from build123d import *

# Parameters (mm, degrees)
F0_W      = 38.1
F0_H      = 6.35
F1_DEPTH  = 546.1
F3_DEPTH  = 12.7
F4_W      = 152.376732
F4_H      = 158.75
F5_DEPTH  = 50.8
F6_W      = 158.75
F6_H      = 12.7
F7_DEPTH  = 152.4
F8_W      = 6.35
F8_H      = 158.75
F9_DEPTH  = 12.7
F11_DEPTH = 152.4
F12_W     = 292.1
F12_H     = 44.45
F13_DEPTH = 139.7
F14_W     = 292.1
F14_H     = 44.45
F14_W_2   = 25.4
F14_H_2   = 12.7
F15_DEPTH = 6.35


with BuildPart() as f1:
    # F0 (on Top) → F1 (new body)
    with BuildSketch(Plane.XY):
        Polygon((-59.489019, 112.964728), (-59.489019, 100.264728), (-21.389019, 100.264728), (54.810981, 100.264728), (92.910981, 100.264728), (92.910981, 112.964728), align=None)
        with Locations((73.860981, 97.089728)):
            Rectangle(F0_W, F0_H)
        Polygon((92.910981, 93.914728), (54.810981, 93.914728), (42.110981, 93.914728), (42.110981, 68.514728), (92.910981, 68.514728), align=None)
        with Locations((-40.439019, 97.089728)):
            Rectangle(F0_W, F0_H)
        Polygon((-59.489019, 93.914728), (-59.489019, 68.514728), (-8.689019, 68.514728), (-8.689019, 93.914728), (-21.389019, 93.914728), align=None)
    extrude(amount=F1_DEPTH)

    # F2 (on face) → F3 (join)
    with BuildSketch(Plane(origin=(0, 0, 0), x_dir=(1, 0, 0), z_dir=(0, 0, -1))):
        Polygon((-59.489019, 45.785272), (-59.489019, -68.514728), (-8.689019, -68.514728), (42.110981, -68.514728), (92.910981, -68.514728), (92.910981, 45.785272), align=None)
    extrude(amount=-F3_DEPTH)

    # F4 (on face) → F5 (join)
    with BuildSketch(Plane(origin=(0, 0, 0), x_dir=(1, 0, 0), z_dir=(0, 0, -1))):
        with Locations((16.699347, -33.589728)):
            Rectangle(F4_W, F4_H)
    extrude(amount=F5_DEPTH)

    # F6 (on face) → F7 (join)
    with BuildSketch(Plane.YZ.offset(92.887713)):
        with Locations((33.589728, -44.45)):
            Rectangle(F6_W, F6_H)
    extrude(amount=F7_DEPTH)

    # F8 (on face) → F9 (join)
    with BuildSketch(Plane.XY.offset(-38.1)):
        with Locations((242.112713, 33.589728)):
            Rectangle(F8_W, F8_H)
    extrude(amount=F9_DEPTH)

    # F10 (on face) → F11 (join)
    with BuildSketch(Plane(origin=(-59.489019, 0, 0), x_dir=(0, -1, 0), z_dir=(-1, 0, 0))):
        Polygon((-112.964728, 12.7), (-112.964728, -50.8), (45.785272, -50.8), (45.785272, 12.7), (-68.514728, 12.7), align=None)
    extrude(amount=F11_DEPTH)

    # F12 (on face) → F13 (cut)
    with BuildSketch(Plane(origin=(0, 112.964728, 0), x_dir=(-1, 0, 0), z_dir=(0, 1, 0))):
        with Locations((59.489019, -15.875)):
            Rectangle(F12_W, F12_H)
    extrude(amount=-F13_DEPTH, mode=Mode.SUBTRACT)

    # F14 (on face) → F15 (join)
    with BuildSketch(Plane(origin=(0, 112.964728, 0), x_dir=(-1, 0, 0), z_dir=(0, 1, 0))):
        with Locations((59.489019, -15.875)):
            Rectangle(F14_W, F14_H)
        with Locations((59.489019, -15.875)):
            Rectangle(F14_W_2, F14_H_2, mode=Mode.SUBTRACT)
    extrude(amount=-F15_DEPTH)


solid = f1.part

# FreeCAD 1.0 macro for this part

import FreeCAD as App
import Part
import Sketcher

V = App.Vector
Q = App.Units.Quantity


def add_polygon(sketch, points):
    """Adds a closed chain of lines whose ends are joined by coincident constraints."""
    first, n = sketch.GeometryCount, len(points)
    for a, b in zip(points, points[1:] + points[:1]):
        sketch.addGeometry(Part.LineSegment(App.Vector(*a, 0), App.Vector(*b, 0)), False)
    for i in range(n):
        sketch.addConstraint(Sketcher.Constraint("Coincident", first + i, 2, first + (i + 1) % n, 1))

doc = App.newDocument("Part")
params = doc.addObject("Spreadsheet::Sheet", "Params")
for row, (alias, value) in enumerate([
    ("sketch1_width", "2 in"),
    ("sketch1_width2", "3 in"),
    ("sketch1_width3", "6 in"),
    ("sketch1_height", "1 in"),
    ("sketch1_height2", "1.75 in"),
    ("pad1_length", "21.5 in"),
    ("sketch2_width", "6 in"),
    ("sketch2_height", "4.5 in"),
    ("pad2_length", "0.5 in"),
    ("sketch3_height", "6.25 in"),
    ("pad3_length", "2 in"),
    ("sketch4_height", "0.5 in"),
    ("sketch4_width", "6.25 in"),
    ("pad4_length", "6 in"),
    ("sketch5_width", "0.25 in"),
    ("sketch5_height", "6.25 in"),
    ("pad5_length", "0.5 in"),
    ("sketch6_height", "2.5 in"),
    ("sketch6_width", "6.25 in"),
    ("pad6_length", "6 in"),
    ("sketch7_width", "11.5 in"),
    ("sketch7_height", "1.75 in"),
    ("pocket1_length", "5.5 in"),
    ("sketch8_width", "1 in"),
    ("sketch8_width2", "11.5 in"),
    ("sketch8_height", "0.5 in"),
    ("sketch8_height2", "1.75 in"),
    ("pad7_length", "0.25 in"),
], start=1):
    params.set(f"A{row}", alias)
    params.set(f"B{row}", "=" + value)
    params.setAlias(f"B{row}", alias)

body = doc.addObject("PartDesign::Body", "Body")

# Sketch on XY plane
sketch1 = doc.addObject("Sketcher::SketchObject", "Sketch")
body.addObject(sketch1)
sketch1.AttachmentSupport = (doc.XY_Plane, [""])
sketch1.MapMode = "FlatFace"
add_polygon(sketch1, [(-59, 113), (-59, 69), (-9, 69), (-9, 94), (-21, 94), (-21, 100), (55, 100), (55, 94), (42, 94), (42, 69), (93, 69), (93, 113)])  # lines 0-11
sketch1.addConstraint([
    Sketcher.Constraint("Vertical", 0),
    Sketcher.Constraint("Horizontal", 1),
    Sketcher.Constraint("Vertical", 2),
    Sketcher.Constraint("Horizontal", 3),
    Sketcher.Constraint("Vertical", 4),
    Sketcher.Constraint("Horizontal", 5),
    Sketcher.Constraint("Vertical", 6),
    Sketcher.Constraint("Horizontal", 7),
    Sketcher.Constraint("Vertical", 8),
    Sketcher.Constraint("Horizontal", 9),
    Sketcher.Constraint("Vertical", 10),
    Sketcher.Constraint("Horizontal", 11),
    Sketcher.Constraint("Horizontal", 3, 2, 6, 2),
    Sketcher.Constraint("Horizontal", 1, 2, 8, 2),
    Sketcher.Constraint("Equal", 3, 7),
    Sketcher.Constraint("Equal", 1, 9),
    Sketcher.Constraint("DistanceX", 1, 1, 1, 2, Q("2 in")),
    Sketcher.Constraint("DistanceX", 5, 1, 5, 2, Q("3 in")),
    Sketcher.Constraint("DistanceX", 11, 2, 11, 1, Q("6 in")),
    Sketcher.Constraint("DistanceY", 2, 1, 2, 2, Q("1 in")),
    Sketcher.Constraint("DistanceY", 0, 2, 0, 1, Q("1.75 in")),
    Sketcher.Constraint("DistanceY", 4, 1, 4, 2, Q("0.25 in")),
    Sketcher.Constraint("DistanceX", 0, 2, -1, 1, Q("59.489019 mm")),
    Sketcher.Constraint("DistanceY", -1, 1, 0, 2, Q("68.514728 mm")),
])
sketch1.setExpression("Constraints[28]", "Params.sketch1_width")
sketch1.setExpression("Constraints[29]", "Params.sketch1_width2")
sketch1.setExpression("Constraints[30]", "Params.sketch1_width3")
sketch1.setExpression("Constraints[31]", "Params.sketch1_height")
sketch1.setExpression("Constraints[32]", "Params.sketch1_height2")
pad1 = doc.addObject("PartDesign::Pad", "Pad")
body.addObject(pad1)
pad1.Profile = sketch1
pad1.setExpression("Length", "Params.pad1_length")

# Sketch on XY plane
sketch2 = doc.addObject("Sketcher::SketchObject", "Sketch001")
body.addObject(sketch2)
sketch2.AttachmentSupport = (doc.XY_Plane, [""])
sketch2.MapMode = "FlatFace"
add_polygon(sketch2, [(-59, -46), (-59, 69), (93, 69), (93, -46)])  # lines 0-3
sketch2.addConstraint([
    Sketcher.Constraint("Vertical", 0),
    Sketcher.Constraint("Horizontal", 1),
    Sketcher.Constraint("Vertical", 2),
    Sketcher.Constraint("Horizontal", 3),
    Sketcher.Constraint("DistanceX", 1, 1, 1, 2, Q("6 in")),
    Sketcher.Constraint("DistanceY", 0, 1, 0, 2, Q("4.5 in")),
    Sketcher.Constraint("DistanceX", 0, 2, -1, 1, Q("59.489019 mm")),
    Sketcher.Constraint("DistanceY", -1, 1, 0, 2, Q("68.514728 mm")),
])
sketch2.setExpression("Constraints[8]", "Params.sketch2_width")
sketch2.setExpression("Constraints[9]", "Params.sketch2_height")
pad2 = doc.addObject("PartDesign::Pad", "Pad001")
body.addObject(pad2)
pad2.Profile = sketch2
pad2.setExpression("Length", "Params.pad2_length")

# Sketch on XY plane
sketch3 = doc.addObject("Sketcher::SketchObject", "Sketch002")
body.addObject(sketch3)
sketch3.AttachmentSupport = (doc.XY_Plane, [""])
sketch3.MapMode = "FlatFace"
add_polygon(sketch3, [(-59, -46), (-59, 113), (93, 113), (93, -46)])  # lines 0-3
sketch3.addConstraint([
    Sketcher.Constraint("Vertical", 0),
    Sketcher.Constraint("Horizontal", 1),
    Sketcher.Constraint("Vertical", 2),
    Sketcher.Constraint("Horizontal", 3),
    Sketcher.Constraint("DistanceY", 0, 1, 0, 2, Q("6.25 in")),
    Sketcher.Constraint("DistanceX", 1, 1, 1, 2, Q("152.376732 mm")),
    Sketcher.Constraint("DistanceX", 0, 2, -1, 1, Q("59.489019 mm")),
    Sketcher.Constraint("DistanceY", -1, 1, 0, 2, Q("112.964728 mm")),
])
sketch3.setExpression("Constraints[8]", "Params.sketch3_height")
pad3 = doc.addObject("PartDesign::Pad", "Pad002")
body.addObject(pad3)
pad3.Profile = sketch3
pad3.setExpression("Length", "Params.pad3_length")
pad3.Reversed = True

# Sketch on YZ plane
sketch4 = doc.addObject("Sketcher::SketchObject", "Sketch003")
body.addObject(sketch4)
sketch4.AttachmentSupport = (doc.YZ_Plane, [""])
sketch4.MapMode = "FlatFace"
sketch4.AttachmentOffset = App.Placement(V(0, 0, 92.887713), App.Rotation())
add_polygon(sketch4, [(-46, -38), (-46, -51), (113, -51), (113, -38)])  # lines 0-3
sketch4.addConstraint([
    Sketcher.Constraint("Vertical", 0),
    Sketcher.Constraint("Horizontal", 1),
    Sketcher.Constraint("Vertical", 2),
    Sketcher.Constraint("Horizontal", 3),
    Sketcher.Constraint("DistanceY", 0, 2, 0, 1, Q("0.5 in")),
    Sketcher.Constraint("DistanceY", 0, 2, -1, 1, Q("2 in")),
    Sketcher.Constraint("DistanceX", 1, 1, 1, 2, Q("6.25 in")),
    Sketcher.Constraint("DistanceX", 0, 2, -1, 1, Q("45.785272 mm")),
])
sketch4.setExpression("Constraints[8]", "Params.sketch4_height")
sketch4.setExpression("Constraints[10]", "Params.sketch4_width")
pad4 = doc.addObject("PartDesign::Pad", "Pad003")
body.addObject(pad4)
pad4.Profile = sketch4
pad4.setExpression("Length", "Params.pad4_length")

# Sketch on XY plane
sketch5 = doc.addObject("Sketcher::SketchObject", "Sketch004")
body.addObject(sketch5)
sketch5.AttachmentSupport = (doc.XY_Plane, [""])
sketch5.MapMode = "FlatFace"
sketch5.AttachmentOffset = App.Placement(V(0, 0, -1.5 * 25.4), App.Rotation())
add_polygon(sketch5, [(239, 113), (239, -46), (245, -46), (245, 113)])  # lines 0-3
sketch5.addConstraint([
    Sketcher.Constraint("Vertical", 0),
    Sketcher.Constraint("Horizontal", 1),
    Sketcher.Constraint("Vertical", 2),
    Sketcher.Constraint("Horizontal", 3),
    Sketcher.Constraint("DistanceX", 1, 1, 1, 2, Q("0.25 in")),
    Sketcher.Constraint("DistanceY", 0, 2, 0, 1, Q("6.25 in")),
    Sketcher.Constraint("DistanceX", -1, 1, 0, 2, Q("238.937713 mm")),
    Sketcher.Constraint("DistanceY", 0, 2, -1, 1, Q("45.785272 mm")),
])
sketch5.setExpression("Constraints[8]", "Params.sketch5_width")
sketch5.setExpression("Constraints[9]", "Params.sketch5_height")
pad5 = doc.addObject("PartDesign::Pad", "Pad004")
body.addObject(pad5)
pad5.Profile = sketch5
pad5.setExpression("Length", "Params.pad5_length")

# Sketch on YZ plane
sketch6 = doc.addObject("Sketcher::SketchObject", "Sketch005")
body.addObject(sketch6)
sketch6.AttachmentSupport = (doc.YZ_Plane, [""])
sketch6.MapMode = "FlatFace"
sketch6.AttachmentOffset = App.Placement(V(0, 0, -59.489019), App.Rotation())
add_polygon(sketch6, [(113, 13), (113, -51), (-46, -51), (-46, 13)])  # lines 0-3
sketch6.addConstraint([
    Sketcher.Constraint("Vertical", 0),
    Sketcher.Constraint("Horizontal", 1),
    Sketcher.Constraint("Vertical", 2),
    Sketcher.Constraint("Horizontal", 3),
    Sketcher.Constraint("DistanceY", 0, 2, 0, 1, Q("2.5 in")),
    Sketcher.Constraint("DistanceY", 0, 2, -1, 1, Q("2 in")),
    Sketcher.Constraint("DistanceX", 1, 2, 1, 1, Q("6.25 in")),
    Sketcher.Constraint("DistanceX", -1, 1, 0, 2, Q("112.964728 mm")),
])
sketch6.setExpression("Constraints[8]", "Params.sketch6_height")
sketch6.setExpression("Constraints[10]", "Params.sketch6_width")
pad6 = doc.addObject("PartDesign::Pad", "Pad005")
body.addObject(pad6)
pad6.Profile = sketch6
pad6.setExpression("Length", "Params.pad6_length")
pad6.Reversed = True

# Sketch on XZ plane
sketch7 = doc.addObject("Sketcher::SketchObject", "Sketch006")
body.addObject(sketch7)
sketch7.AttachmentSupport = (doc.XZ_Plane, [""])
sketch7.MapMode = "FlatFace"
sketch7.AttachmentOffset = App.Placement(V(0, 0, -112.964728), App.Rotation())
add_polygon(sketch7, [(87, 6), (87, -38), (-206, -38), (-206, 6)])  # lines 0-3
sketch7.addConstraint([
    Sketcher.Constraint("Vertical", 0),
    Sketcher.Constraint("Horizontal", 1),
    Sketcher.Constraint("Vertical", 2),
    Sketcher.Constraint("Horizontal", 3),
    Sketcher.Constraint("DistanceX", 1, 2, 1, 1, Q("11.5 in")),
    Sketcher.Constraint("DistanceY", 0, 2, 0, 1, Q("1.75 in")),
    Sketcher.Constraint("DistanceY", 0, 2, -1, 1, Q("1.5 in")),
    Sketcher.Constraint("DistanceX", -1, 1, 0, 2, Q("86.560981 mm")),
])
sketch7.setExpression("Constraints[8]", "Params.sketch7_width")
sketch7.setExpression("Constraints[9]", "Params.sketch7_height")
pocket1 = doc.addObject("PartDesign::Pocket", "Pocket")
body.addObject(pocket1)
pocket1.Profile = sketch7
pocket1.setExpression("Length", "Params.pocket1_length")
pocket1.Reversed = True

# Sketch on XZ plane
sketch8 = doc.addObject("Sketcher::SketchObject", "Sketch007")
body.addObject(sketch8)
sketch8.AttachmentSupport = (doc.XZ_Plane, [""])
sketch8.MapMode = "FlatFace"
sketch8.AttachmentOffset = App.Placement(V(0, 0, -112.964728), App.Rotation())
add_polygon(sketch8, [(87, 6), (87, -38), (-206, -38), (-206, 6)])  # lines 0-3
add_polygon(sketch8, [(-72, -22), (-47, -22), (-47, -10), (-72, -10)])  # lines 4-7
sketch8.addConstraint([
    Sketcher.Constraint("Vertical", 0),
    Sketcher.Constraint("Horizontal", 1),
    Sketcher.Constraint("Vertical", 2),
    Sketcher.Constraint("Horizontal", 3),
    Sketcher.Constraint("Horizontal", 4),
    Sketcher.Constraint("Vertical", 5),
    Sketcher.Constraint("Horizontal", 6),
    Sketcher.Constraint("Vertical", 7),
    Sketcher.Constraint("DistanceX", 4, 1, 4, 2, Q("1 in")),
    Sketcher.Constraint("DistanceX", 1, 2, 1, 1, Q("11.5 in")),
    Sketcher.Constraint("DistanceY", 5, 1, 5, 2, Q("0.5 in")),
    Sketcher.Constraint("DistanceY", 0, 2, 0, 1, Q("1.75 in")),
    Sketcher.Constraint("DistanceY", 0, 2, -1, 1, Q("1.5 in")),
    Sketcher.Constraint("DistanceX", 4, 2, 0, 2, Q("5.25 in")),
    Sketcher.Constraint("DistanceY", 4, 2, -1, 1, Q("0.875 in")),
    Sketcher.Constraint("DistanceX", -1, 1, 0, 2, Q("86.560981 mm")),
])
sketch8.setExpression("Constraints[16]", "Params.sketch8_width")
sketch8.setExpression("Constraints[17]", "Params.sketch8_width2")
sketch8.setExpression("Constraints[18]", "Params.sketch8_height")
sketch8.setExpression("Constraints[19]", "Params.sketch8_height2")
pad7 = doc.addObject("PartDesign::Pad", "Pad006")
body.addObject(pad7)
pad7.Profile = sketch8
pad7.setExpression("Length", "Params.pad7_length")

doc.recompute()
